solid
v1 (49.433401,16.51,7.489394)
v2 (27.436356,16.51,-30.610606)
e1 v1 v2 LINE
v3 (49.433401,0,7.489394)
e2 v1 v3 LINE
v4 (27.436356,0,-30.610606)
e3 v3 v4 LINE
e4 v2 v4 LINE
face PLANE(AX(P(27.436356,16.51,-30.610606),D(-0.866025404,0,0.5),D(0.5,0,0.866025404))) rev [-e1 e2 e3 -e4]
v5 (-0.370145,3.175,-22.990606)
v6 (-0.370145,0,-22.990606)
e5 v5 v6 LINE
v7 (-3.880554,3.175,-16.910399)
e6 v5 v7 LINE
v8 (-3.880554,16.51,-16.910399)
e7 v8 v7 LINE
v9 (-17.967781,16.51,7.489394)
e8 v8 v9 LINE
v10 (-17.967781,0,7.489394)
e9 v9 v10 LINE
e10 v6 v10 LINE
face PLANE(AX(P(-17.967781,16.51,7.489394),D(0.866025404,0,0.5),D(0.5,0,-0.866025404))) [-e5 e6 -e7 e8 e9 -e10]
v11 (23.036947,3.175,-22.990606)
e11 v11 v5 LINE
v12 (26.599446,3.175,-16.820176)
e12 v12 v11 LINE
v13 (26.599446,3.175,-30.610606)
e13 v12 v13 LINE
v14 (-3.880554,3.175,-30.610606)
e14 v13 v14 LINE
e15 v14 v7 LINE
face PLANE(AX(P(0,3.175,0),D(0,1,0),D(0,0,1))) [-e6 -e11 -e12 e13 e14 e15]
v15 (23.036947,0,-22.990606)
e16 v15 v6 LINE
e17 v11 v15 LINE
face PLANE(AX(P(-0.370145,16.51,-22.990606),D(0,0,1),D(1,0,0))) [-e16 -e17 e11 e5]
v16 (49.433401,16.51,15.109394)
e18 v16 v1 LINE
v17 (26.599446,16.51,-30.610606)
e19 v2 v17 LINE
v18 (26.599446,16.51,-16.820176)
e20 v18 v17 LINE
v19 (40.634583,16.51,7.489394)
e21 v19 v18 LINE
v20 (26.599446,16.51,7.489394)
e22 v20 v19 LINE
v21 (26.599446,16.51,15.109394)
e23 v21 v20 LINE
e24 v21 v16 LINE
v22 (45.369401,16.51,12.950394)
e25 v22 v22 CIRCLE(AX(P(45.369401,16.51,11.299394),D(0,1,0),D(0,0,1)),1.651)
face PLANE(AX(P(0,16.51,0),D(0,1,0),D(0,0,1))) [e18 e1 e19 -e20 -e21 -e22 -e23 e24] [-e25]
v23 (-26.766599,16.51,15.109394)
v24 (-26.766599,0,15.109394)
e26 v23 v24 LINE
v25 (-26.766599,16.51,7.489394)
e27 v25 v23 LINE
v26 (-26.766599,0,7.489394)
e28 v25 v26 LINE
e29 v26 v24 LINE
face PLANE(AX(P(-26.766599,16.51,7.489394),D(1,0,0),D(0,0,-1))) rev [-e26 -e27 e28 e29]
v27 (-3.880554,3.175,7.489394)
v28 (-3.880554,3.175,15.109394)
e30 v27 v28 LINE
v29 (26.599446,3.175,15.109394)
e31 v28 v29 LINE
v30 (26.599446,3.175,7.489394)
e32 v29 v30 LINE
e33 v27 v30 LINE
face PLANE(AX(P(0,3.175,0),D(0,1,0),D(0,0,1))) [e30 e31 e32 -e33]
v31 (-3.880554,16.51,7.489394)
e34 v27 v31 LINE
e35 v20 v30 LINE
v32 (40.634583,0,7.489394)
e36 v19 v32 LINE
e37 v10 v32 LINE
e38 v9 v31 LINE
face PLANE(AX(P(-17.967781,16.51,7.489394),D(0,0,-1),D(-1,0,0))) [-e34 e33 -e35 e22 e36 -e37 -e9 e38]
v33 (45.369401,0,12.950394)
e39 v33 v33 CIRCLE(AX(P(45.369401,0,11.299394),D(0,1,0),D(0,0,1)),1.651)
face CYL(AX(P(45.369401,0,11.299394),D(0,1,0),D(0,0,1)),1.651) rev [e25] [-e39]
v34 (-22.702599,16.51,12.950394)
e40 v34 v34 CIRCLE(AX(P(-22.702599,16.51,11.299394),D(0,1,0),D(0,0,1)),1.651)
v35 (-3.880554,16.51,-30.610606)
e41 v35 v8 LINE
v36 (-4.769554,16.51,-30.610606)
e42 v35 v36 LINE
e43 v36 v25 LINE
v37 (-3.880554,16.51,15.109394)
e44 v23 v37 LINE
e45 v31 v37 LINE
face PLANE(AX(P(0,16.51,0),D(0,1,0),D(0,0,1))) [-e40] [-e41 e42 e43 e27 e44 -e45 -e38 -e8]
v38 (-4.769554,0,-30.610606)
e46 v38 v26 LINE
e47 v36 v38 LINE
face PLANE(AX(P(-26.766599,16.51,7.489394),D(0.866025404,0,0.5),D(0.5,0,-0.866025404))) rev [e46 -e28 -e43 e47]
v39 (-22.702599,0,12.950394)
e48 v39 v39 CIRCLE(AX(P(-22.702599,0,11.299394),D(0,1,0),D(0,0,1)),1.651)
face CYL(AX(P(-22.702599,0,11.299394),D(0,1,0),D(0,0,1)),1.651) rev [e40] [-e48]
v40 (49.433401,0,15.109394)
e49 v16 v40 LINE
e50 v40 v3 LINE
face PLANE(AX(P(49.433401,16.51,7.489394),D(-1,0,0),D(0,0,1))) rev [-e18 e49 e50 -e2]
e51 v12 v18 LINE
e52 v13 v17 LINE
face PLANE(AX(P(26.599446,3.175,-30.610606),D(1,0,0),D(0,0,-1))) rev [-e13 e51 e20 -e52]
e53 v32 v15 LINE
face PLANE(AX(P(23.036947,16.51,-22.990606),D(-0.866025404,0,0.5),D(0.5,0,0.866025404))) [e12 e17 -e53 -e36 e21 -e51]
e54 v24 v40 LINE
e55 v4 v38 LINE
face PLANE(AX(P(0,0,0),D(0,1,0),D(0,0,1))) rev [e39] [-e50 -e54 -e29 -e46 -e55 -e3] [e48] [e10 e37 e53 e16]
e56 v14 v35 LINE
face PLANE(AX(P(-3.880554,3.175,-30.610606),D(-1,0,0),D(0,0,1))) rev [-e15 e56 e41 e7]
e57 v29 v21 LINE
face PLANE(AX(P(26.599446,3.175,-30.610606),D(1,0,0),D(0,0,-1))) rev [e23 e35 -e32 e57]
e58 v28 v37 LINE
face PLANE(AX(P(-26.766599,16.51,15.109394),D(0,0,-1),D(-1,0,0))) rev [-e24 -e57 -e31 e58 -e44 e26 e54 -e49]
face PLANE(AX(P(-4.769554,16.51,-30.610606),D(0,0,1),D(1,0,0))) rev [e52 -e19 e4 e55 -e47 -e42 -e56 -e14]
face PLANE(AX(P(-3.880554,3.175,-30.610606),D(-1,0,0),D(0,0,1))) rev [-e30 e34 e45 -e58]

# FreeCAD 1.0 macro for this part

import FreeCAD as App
import Part
import Sketcher
Q = App.Units.Quantity

doc = App.newDocument("Part")
body = doc.addObject("PartDesign::Body", "Body")

# Sketch on XZ plane
sketch1 = doc.addObject("Sketcher::SketchObject", "Sketch")
body.addObject(sketch1)
sketch1.AttachmentSupport = (doc.XZ_Plane, [""])
sketch1.MapMode = "FlatFace"
sketch1.addGeometry(Part.LineSegment(App.Vector(-4.769554, -30.610606, 0), App.Vector(-26.766599, 7.489394, 0)), False)
sketch1.addGeometry(Part.LineSegment(App.Vector(-26.766599, 7.489394, 0), App.Vector(-26.766599, 15.109394, 0)), False)
sketch1.addGeometry(Part.LineSegment(App.Vector(-26.766599, 15.109394, 0), App.Vector(49.433401, 15.109394, 0)), False)
sketch1.addGeometry(Part.LineSegment(App.Vector(49.433401, 15.109394, 0), App.Vector(49.433401, 7.489394, 0)), False)
sketch1.addGeometry(Part.LineSegment(App.Vector(49.433401, 7.489394, 0), App.Vector(27.436356, -30.610606, 0)), False)
sketch1.addGeometry(Part.LineSegment(App.Vector(27.436356, -30.610606, 0), App.Vector(-4.769554, -30.610606, 0)), False)
sketch1.addGeometry(Part.LineSegment(App.Vector(-17.967781, 7.489394, 0), App.Vector(-0.370145, -22.990606, 0)), False)
sketch1.addGeometry(Part.LineSegment(App.Vector(-0.370145, -22.990606, 0), App.Vector(23.036947, -22.990606, 0)), False)
sketch1.addGeometry(Part.LineSegment(App.Vector(23.036947, -22.990606, 0), App.Vector(40.634583, 7.489394, 0)), False)
sketch1.addGeometry(Part.LineSegment(App.Vector(40.634583, 7.489394, 0), App.Vector(-17.967781, 7.489394, 0)), False)
sketch1.addConstraint(Sketcher.Constraint("Coincident", 0, 2, 1, 1))
sketch1.addConstraint(Sketcher.Constraint("Coincident", 1, 2, 2, 1))
sketch1.addConstraint(Sketcher.Constraint("Coincident", 2, 2, 3, 1))
sketch1.addConstraint(Sketcher.Constraint("Coincident", 3, 2, 4, 1))
sketch1.addConstraint(Sketcher.Constraint("Coincident", 4, 2, 5, 1))
sketch1.addConstraint(Sketcher.Constraint("Coincident", 5, 2, 0, 1))
sketch1.addConstraint(Sketcher.Constraint("Coincident", 6, 2, 7, 1))
sketch1.addConstraint(Sketcher.Constraint("Coincident", 7, 2, 8, 1))
sketch1.addConstraint(Sketcher.Constraint("Coincident", 8, 2, 9, 1))
sketch1.addConstraint(Sketcher.Constraint("Coincident", 9, 2, 6, 1))
sketch1.addConstraint(Sketcher.Constraint("Vertical", 1))
sketch1.addConstraint(Sketcher.Constraint("Horizontal", 2))
sketch1.addConstraint(Sketcher.Constraint("Vertical", 3))
sketch1.addConstraint(Sketcher.Constraint("Horizontal", 5))
sketch1.addConstraint(Sketcher.Constraint("Horizontal", 7))
sketch1.addConstraint(Sketcher.Constraint("Horizontal", 9))
sketch1.addConstraint(Sketcher.Constraint("Parallel", 0, 6))
sketch1.addConstraint(Sketcher.Constraint("Parallel", 4, 8))
sketch1.addConstraint(Sketcher.Constraint("Horizontal", 0, 2, 3, 2))
sketch1.addConstraint(Sketcher.Constraint("Horizontal", 3, 2, 8, 2))
sketch1.addConstraint(Sketcher.Constraint("Equal", 0, 4))
sketch1.addConstraint(Sketcher.Constraint("DistanceX", 2, 1, 2, 2, Q("3 in")))
sketch1.addConstraint(Sketcher.Constraint("DistanceY", 1, 1, 1, 2, Q("0.3 in")))
sketch1.addConstraint(Sketcher.Constraint("Angle", 0, Q("120 deg")))
sketch1.addConstraint(Sketcher.Constraint("DistanceY", 4, 2, 3, 2, Q("1.5 in")))
sketch1.addConstraint(Sketcher.Constraint("DistanceY", 5, 2, 6, 2, Q("0.3 in")))
sketch1.addConstraint(Sketcher.Constraint("DistanceX", 7, 1, 7, 2, 23.407091))
sketch1.addConstraint(Sketcher.Constraint("DistanceX", 0, 2, -1, 1, 26.766599))
sketch1.addConstraint(Sketcher.Constraint("DistanceX", 6, 2, 4, 2, 27.8065))
sketch1.addConstraint(Sketcher.Constraint("DistanceY", -1, 1, 0, 2, 7.489394))
pad1 = doc.addObject("PartDesign::Pad", "Pad")
body.addObject(pad1)
pad1.Profile = sketch1
pad1.Length = Q("0.65 in")
pad1.Reversed = True

# Sketch on XZ plane
sketch2 = doc.addObject("Sketcher::SketchObject", "Sketch001")
body.addObject(sketch2)
sketch2.AttachmentSupport = (doc.XZ_Plane, [""])
sketch2.MapMode = "FlatFace"
sketch2.AttachmentOffset = App.Placement(App.Vector(0, 0, -0.65 * 25.4), App.Rotation())
sketch2.addGeometry(Part.Circle(App.Vector(-22.702599, 11.299394, 0), App.Vector(0, 0, 1), 1.651), False)
sketch2.addGeometry(Part.Circle(App.Vector(45.369401, 11.299394, 0), App.Vector(0, 0, 1), 1.651), False)
sketch2.addConstraint(Sketcher.Constraint("Equal", 0, 1))
sketch2.addConstraint(Sketcher.Constraint("Horizontal", 0, 3, 1, 3))
sketch2.addConstraint(Sketcher.Constraint("Diameter", 0, Q("0.13 in")))
sketch2.addConstraint(Sketcher.Constraint("DistanceX", 0, 3, 1, 3, Q("2.68 in")))
sketch2.addConstraint(Sketcher.Constraint("DistanceX", 0, 3, -1, 1, 22.702599))
sketch2.addConstraint(Sketcher.Constraint("DistanceY", -1, 1, 0, 3, 11.299394))
pocket1 = doc.addObject("PartDesign::Pocket", "Pocket")
body.addObject(pocket1)
pocket1.Profile = sketch2
pocket1.Length = Q("0.65 in")
pocket1.Reversed = True

# Sketch on XZ plane
sketch3 = doc.addObject("Sketcher::SketchObject", "Sketch002")
body.addObject(sketch3)
sketch3.AttachmentSupport = (doc.XZ_Plane, [""])
sketch3.MapMode = "FlatFace"
sketch3.AttachmentOffset = App.Placement(App.Vector(0, 0, -0.65 * 25.4), App.Rotation())
sketch3.addGeometry(Part.LineSegment(App.Vector(-3.880554, -30.610606, 0), App.Vector(-3.880554, 15.109394, 0)), False)
sketch3.addGeometry(Part.LineSegment(App.Vector(-3.880554, 15.109394, 0), App.Vector(26.599446, 15.109394, 0)), False)
sketch3.addGeometry(Part.LineSegment(App.Vector(26.599446, 15.109394, 0), App.Vector(26.599446, -30.610606, 0)), False)
sketch3.addGeometry(Part.LineSegment(App.Vector(26.599446, -30.610606, 0), App.Vector(-3.880554, -30.610606, 0)), False)
sketch3.addConstraint(Sketcher.Constraint("Coincident", 0, 2, 1, 1))
sketch3.addConstraint(Sketcher.Constraint("Coincident", 1, 2, 2, 1))
sketch3.addConstraint(Sketcher.Constraint("Coincident", 2, 2, 3, 1))
sketch3.addConstraint(Sketcher.Constraint("Coincident", 3, 2, 0, 1))
sketch3.addConstraint(Sketcher.Constraint("Vertical", 0))
sketch3.addConstraint(Sketcher.Constraint("Horizontal", 1))
sketch3.addConstraint(Sketcher.Constraint("Vertical", 2))
sketch3.addConstraint(Sketcher.Constraint("Horizontal", 3))
sketch3.addConstraint(Sketcher.Constraint("DistanceX", 1, 1, 1, 2, Q("1.2 in")))
sketch3.addConstraint(Sketcher.Constraint("DistanceY", 0, 1, 0, 2, Q("1.8 in")))
sketch3.addConstraint(Sketcher.Constraint("DistanceX", 0, 2, -1, 1, 3.880554))
sketch3.addConstraint(Sketcher.Constraint("DistanceY", -1, 1, 0, 2, 15.109394))
pocket2 = doc.addObject("PartDesign::Pocket", "Pocket001")
body.addObject(pocket2)
pocket2.Profile = sketch3
pocket2.Length = Q("0.525 in")
pocket2.Reversed = True

doc.recompute()
